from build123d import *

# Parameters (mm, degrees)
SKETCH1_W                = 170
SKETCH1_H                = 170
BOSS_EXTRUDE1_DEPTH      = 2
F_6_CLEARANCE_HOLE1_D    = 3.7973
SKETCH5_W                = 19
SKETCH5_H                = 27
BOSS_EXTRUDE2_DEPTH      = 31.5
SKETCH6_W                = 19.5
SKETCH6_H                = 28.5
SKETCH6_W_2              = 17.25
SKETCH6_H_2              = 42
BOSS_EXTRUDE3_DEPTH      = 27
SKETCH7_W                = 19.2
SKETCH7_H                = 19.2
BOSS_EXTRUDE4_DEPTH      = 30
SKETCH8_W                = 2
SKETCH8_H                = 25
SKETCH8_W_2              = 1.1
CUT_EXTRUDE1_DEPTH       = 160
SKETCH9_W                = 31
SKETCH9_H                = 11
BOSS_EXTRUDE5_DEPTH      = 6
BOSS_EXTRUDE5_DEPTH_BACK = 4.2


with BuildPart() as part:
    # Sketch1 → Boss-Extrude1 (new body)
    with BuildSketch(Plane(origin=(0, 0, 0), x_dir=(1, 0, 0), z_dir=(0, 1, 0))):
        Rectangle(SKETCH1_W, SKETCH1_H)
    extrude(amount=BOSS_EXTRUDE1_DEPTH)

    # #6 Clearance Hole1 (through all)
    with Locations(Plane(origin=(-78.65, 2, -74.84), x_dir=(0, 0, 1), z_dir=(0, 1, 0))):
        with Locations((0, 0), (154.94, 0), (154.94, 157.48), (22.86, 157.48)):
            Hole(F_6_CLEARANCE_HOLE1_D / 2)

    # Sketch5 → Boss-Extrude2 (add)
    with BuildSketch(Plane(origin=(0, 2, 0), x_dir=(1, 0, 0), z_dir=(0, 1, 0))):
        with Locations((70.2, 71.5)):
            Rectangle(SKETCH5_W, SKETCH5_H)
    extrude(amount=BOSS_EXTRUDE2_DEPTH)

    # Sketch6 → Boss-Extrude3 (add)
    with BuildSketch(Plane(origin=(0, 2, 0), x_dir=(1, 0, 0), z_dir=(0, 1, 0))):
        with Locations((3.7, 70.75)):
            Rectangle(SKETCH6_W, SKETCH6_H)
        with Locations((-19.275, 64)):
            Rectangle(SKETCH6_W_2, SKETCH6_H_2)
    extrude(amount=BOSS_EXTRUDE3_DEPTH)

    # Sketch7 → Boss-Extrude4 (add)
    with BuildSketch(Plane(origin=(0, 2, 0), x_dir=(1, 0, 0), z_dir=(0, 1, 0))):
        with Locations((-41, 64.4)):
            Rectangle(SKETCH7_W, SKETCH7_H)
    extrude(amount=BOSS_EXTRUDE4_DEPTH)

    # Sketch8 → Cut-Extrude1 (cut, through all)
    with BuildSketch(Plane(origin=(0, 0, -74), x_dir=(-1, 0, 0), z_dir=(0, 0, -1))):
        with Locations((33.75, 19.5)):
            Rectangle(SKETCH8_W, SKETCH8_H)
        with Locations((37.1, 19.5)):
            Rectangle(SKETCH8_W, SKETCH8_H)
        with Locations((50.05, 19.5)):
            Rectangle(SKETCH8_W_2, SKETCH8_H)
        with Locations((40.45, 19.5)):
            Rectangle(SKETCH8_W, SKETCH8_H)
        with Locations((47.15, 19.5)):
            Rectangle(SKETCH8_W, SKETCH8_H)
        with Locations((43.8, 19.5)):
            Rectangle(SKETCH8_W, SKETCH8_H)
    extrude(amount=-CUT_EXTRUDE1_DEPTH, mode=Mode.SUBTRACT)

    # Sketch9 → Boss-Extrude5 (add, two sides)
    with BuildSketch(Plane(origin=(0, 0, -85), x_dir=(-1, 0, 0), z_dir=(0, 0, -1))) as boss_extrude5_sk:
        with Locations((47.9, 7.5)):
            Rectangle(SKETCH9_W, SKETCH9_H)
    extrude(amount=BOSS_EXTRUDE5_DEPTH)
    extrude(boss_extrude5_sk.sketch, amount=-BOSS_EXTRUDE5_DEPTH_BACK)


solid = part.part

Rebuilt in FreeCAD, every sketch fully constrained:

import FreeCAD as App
import Part
import Sketcher

V = App.Vector
Q = App.Units.Quantity

doc = App.newDocument("Part")
body = doc.addObject("PartDesign::Body", "Body")

sketch1 = doc.addObject("Sketcher::SketchObject", "Sketch")
body.addObject(sketch1)
sketch1.AttachmentSupport = (doc.XZ_Plane, [""])
sketch1.MapMode = "FlatFace"
sketch1.addGeometry([
    Part.LineSegment(V(-85, -85, 0), V(-85, 85, 0)),
    Part.LineSegment(V(-85, 85, 0), V(85, 85, 0)),
    Part.LineSegment(V(85, 85, 0), V(85, -85, 0)),
    Part.LineSegment(V(85, -85, 0), V(-85, -85, 0)),
], False)
sketch1.addConstraint([
    Sketcher.Constraint("Coincident", 0, 2, 1, 1),
    Sketcher.Constraint("Coincident", 1, 2, 2, 1),
    Sketcher.Constraint("Coincident", 2, 2, 3, 1),
    Sketcher.Constraint("Coincident", 3, 2, 0, 1),
    Sketcher.Constraint("Vertical", 0),
    Sketcher.Constraint("Horizontal", 1),
    Sketcher.Constraint("Vertical", 2),
    Sketcher.Constraint("Horizontal", 3),
    Sketcher.Constraint("Symmetric", 0, 2, 2, 2, -1, 1),
    Sketcher.Constraint("Equal", 3, 0),
    Sketcher.Constraint("DistanceX", 1, 1, 1, 2, Q("170 mm")),
])
pad1 = doc.addObject("PartDesign::Pad", "Pad")
body.addObject(pad1)
pad1.Profile = sketch1
pad1.Length = 2
pad1.Reversed = True

sketch2 = doc.addObject("Sketcher::SketchObject", "Sketch001")
body.addObject(sketch2)
sketch2.AttachmentSupport = (doc.XZ_Plane, [""])
sketch2.MapMode = "FlatFace"
sketch2.AttachmentOffset = App.Placement(V(0, 0, -2), App.Rotation())
sketch2.addGeometry([
    Part.Circle(V(-78.7, -74.8, 0), V(0, 0, 1), 1.9),
    Part.Circle(V(-78.7, 80.1, 0), V(0, 0, 1), 1.9),
    Part.Circle(V(78.8, 80.1, 0), V(0, 0, 1), 1.9),
    Part.Circle(V(78.8, -52, 0), V(0, 0, 1), 1.9),
], False)
sketch2.addConstraint([
    Sketcher.Constraint("Equal", 0, 1),
    Sketcher.Constraint("Equal", 1, 2),
    Sketcher.Constraint("Equal", 2, 3),
    Sketcher.Constraint("Horizontal", 1, 3, 2, 3),
    Sketcher.Constraint("Vertical", 0, 3, 1, 3),
    Sketcher.Constraint("Vertical", 2, 3, 3, 3),
    Sketcher.Constraint("Diameter", 0, Q("3.7973 mm")),
    Sketcher.Constraint("DistanceY", -1, 1, 1, 3, Q("80.1 mm")),
    Sketcher.Constraint("DistanceX", 0, 3, -1, 1, Q("78.65 mm")),
    Sketcher.Constraint("DistanceY", 0, 3, -1, 1, Q("74.84 mm")),
    Sketcher.Constraint("DistanceX", -1, 1, 2, 3, Q("78.83 mm")),
    Sketcher.Constraint("DistanceY", 3, 3, -1, 1, Q("51.98 mm")),
])
doc.recompute()
hole = doc.addObject("PartDesign::Hole", "Hole")
body.addObject(hole)
hole.Profile = sketch2
hole.ThreadType = "None"
hole.Diameter = 3.7973
hole.DepthType = "ThroughAll"
hole.Reversed = True

sketch3 = doc.addObject("Sketcher::SketchObject", "Sketch002")
body.addObject(sketch3)
sketch3.AttachmentSupport = (doc.XZ_Plane, [""])
sketch3.MapMode = "FlatFace"
sketch3.AttachmentOffset = App.Placement(V(0, 0, -2), App.Rotation())
sketch3.addGeometry([
    Part.LineSegment(V(61, -85, 0), V(61, -58, 0)),
    Part.LineSegment(V(61, -58, 0), V(80, -58, 0)),
    Part.LineSegment(V(80, -58, 0), V(80, -85, 0)),
    Part.LineSegment(V(80, -85, 0), V(61, -85, 0)),
], False)
sketch3.addConstraint([
    Sketcher.Constraint("Coincident", 0, 2, 1, 1),
    Sketcher.Constraint("Coincident", 1, 2, 2, 1),
    Sketcher.Constraint("Coincident", 2, 2, 3, 1),
    Sketcher.Constraint("Coincident", 3, 2, 0, 1),
    Sketcher.Constraint("Vertical", 0),
    Sketcher.Constraint("Horizontal", 1),
    Sketcher.Constraint("Vertical", 2),
    Sketcher.Constraint("Horizontal", 3),
    Sketcher.Constraint("DistanceX", 1, 1, 1, 2, Q("19 mm")),
    Sketcher.Constraint("DistanceY", 0, 1, 0, 2, Q("27 mm")),
    Sketcher.Constraint("DistanceY", 0, 2, -1, 1, Q("58 mm")),
    Sketcher.Constraint("DistanceX", -1, 1, 0, 2, Q("60.7 mm")),
])
pad2 = doc.addObject("PartDesign::Pad", "Pad001")
body.addObject(pad2)
pad2.Profile = sketch3
pad2.Length = 31.5
pad2.Reversed = True

sketch4 = doc.addObject("Sketcher::SketchObject", "Sketch003")
body.addObject(sketch4)
sketch4.AttachmentSupport = (doc.XZ_Plane, [""])
sketch4.MapMode = "FlatFace"
sketch4.AttachmentOffset = App.Placement(V(0, 0, -2), App.Rotation())
sketch4.addGeometry([
    Part.LineSegment(V(-6, -85, 0), V(-6, -56, 0)),
    Part.LineSegment(V(-6, -56, 0), V(13, -56, 0)),
    Part.LineSegment(V(13, -56, 0), V(13, -85, 0)),
    Part.LineSegment(V(13, -85, 0), V(-6, -85, 0)),
    Part.LineSegment(V(-28, -85, 0), V(-28, -43, 0)),
    Part.LineSegment(V(-28, -43, 0), V(-11, -43, 0)),
    Part.LineSegment(V(-11, -43, 0), V(-11, -85, 0)),
    Part.LineSegment(V(-11, -85, 0), V(-28, -85, 0)),
], False)
sketch4.addConstraint([
    Sketcher.Constraint("Coincident", 0, 2, 1, 1),
    Sketcher.Constraint("Coincident", 1, 2, 2, 1),
    Sketcher.Constraint("Coincident", 2, 2, 3, 1),
    Sketcher.Constraint("Coincident", 3, 2, 0, 1),
    Sketcher.Constraint("Coincident", 4, 2, 5, 1),
    Sketcher.Constraint("Coincident", 5, 2, 6, 1),
    Sketcher.Constraint("Coincident", 6, 2, 7, 1),
    Sketcher.Constraint("Coincident", 7, 2, 4, 1),
    Sketcher.Constraint("Vertical", 0),
    Sketcher.Constraint("Horizontal", 1),
    Sketcher.Constraint("Vertical", 2),
    Sketcher.Constraint("Horizontal", 3),
    Sketcher.Constraint("Vertical", 4),
    Sketcher.Constraint("Horizontal", 5),
    Sketcher.Constraint("Vertical", 6),
    Sketcher.Constraint("Horizontal", 7),
    Sketcher.Constraint("Horizontal", 3, 2, 6, 2),
    Sketcher.Constraint("DistanceY", 4, 1, 4, 2, Q("42 mm")),
    Sketcher.Constraint("DistanceX", 1, 1, 1, 2, Q("19.5 mm")),
    Sketcher.Constraint("DistanceY", 0, 1, 0, 2, Q("28.5 mm")),
    Sketcher.Constraint("DistanceY", 2, 2, -1, 1, Q("85 mm")),
    Sketcher.Constraint("DistanceX", 5, 1, 5, 2, Q("17.25 mm")),
    Sketcher.Constraint("DistanceX", 4, 2, -1, 1, Q("27.9 mm")),
    Sketcher.Constraint("DistanceX", 5, 2, 0, 2, Q("4.6 mm")),
])
pad3 = doc.addObject("PartDesign::Pad", "Pad002")
body.addObject(pad3)
pad3.Profile = sketch4
pad3.Length = 27
pad3.Reversed = True

sketch5 = doc.addObject("Sketcher::SketchObject", "Sketch004")
body.addObject(sketch5)
sketch5.AttachmentSupport = (doc.XZ_Plane, [""])
sketch5.MapMode = "FlatFace"
sketch5.AttachmentOffset = App.Placement(V(0, 0, -2), App.Rotation())
sketch5.addGeometry([
    Part.LineSegment(V(-51, -74, 0), V(-51, -55, 0)),
    Part.LineSegment(V(-51, -55, 0), V(-31, -55, 0)),
    Part.LineSegment(V(-31, -55, 0), V(-31, -74, 0)),
    Part.LineSegment(V(-31, -74, 0), V(-51, -74, 0)),
], False)
sketch5.addConstraint([
    Sketcher.Constraint("Coincident", 0, 2, 1, 1),
    Sketcher.Constraint("Coincident", 1, 2, 2, 1),
    Sketcher.Constraint("Coincident", 2, 2, 3, 1),
    Sketcher.Constraint("Coincident", 3, 2, 0, 1),
    Sketcher.Constraint("Vertical", 0),
    Sketcher.Constraint("Horizontal", 1),
    Sketcher.Constraint("Vertical", 2),
    Sketcher.Constraint("Horizontal", 3),
    Sketcher.Constraint("Equal", 3, 0),
    Sketcher.Constraint("DistanceX", 1, 1, 1, 2, Q("19.2 mm")),
    Sketcher.Constraint("DistanceY", 2, 2, -1, 1, Q("74 mm")),
    Sketcher.Constraint("DistanceX", 0, 2, -1, 1, Q("50.6 mm")),
])
pad4 = doc.addObject("PartDesign::Pad", "Pad003")
body.addObject(pad4)
pad4.Profile = sketch5
pad4.Length = 30
pad4.Reversed = True

sketch6 = doc.addObject("Sketcher::SketchObject", "Sketch005")
body.addObject(sketch6)
sketch6.AttachmentSupport = (doc.XY_Plane, [""])
sketch6.MapMode = "FlatFace"
sketch6.AttachmentOffset = App.Placement(V(0, 0, -74), App.Rotation())
sketch6.addGeometry([
    Part.LineSegment(V(-32.8, 32, 0), V(-32.8, 7, 0)),
    Part.LineSegment(V(-32.8, 7, 0), V(-34.8, 7, 0)),
    Part.LineSegment(V(-34.8, 7, 0), V(-34.8, 32, 0)),
    Part.LineSegment(V(-34.8, 32, 0), V(-32.8, 32, 0)),
    Part.LineSegment(V(-36.1, 32, 0), V(-36.1, 7, 0)),
    Part.LineSegment(V(-36.1, 7, 0), V(-38.1, 7, 0)),
    Part.LineSegment(V(-38.1, 7, 0), V(-38.1, 32, 0)),
    Part.LineSegment(V(-38.1, 32, 0), V(-36.1, 32, 0)),
    Part.LineSegment(V(-49.5, 32, 0), V(-49.5, 7, 0)),
    Part.LineSegment(V(-49.5, 7, 0), V(-50.6, 7, 0)),
    Part.LineSegment(V(-50.6, 7, 0), V(-50.6, 32, 0)),
    Part.LineSegment(V(-50.6, 32, 0), V(-49.5, 32, 0)),
    Part.LineSegment(V(-39.5, 32, 0), V(-39.5, 7, 0)),
    Part.LineSegment(V(-39.5, 7, 0), V(-41.5, 7, 0)),
    Part.LineSegment(V(-41.5, 7, 0), V(-41.5, 32, 0)),
    Part.LineSegment(V(-41.5, 32, 0), V(-39.5, 32, 0)),
    Part.LineSegment(V(-46.1, 32, 0), V(-46.1, 7, 0)),
    Part.LineSegment(V(-46.1, 7, 0), V(-48.1, 7, 0)),
    Part.LineSegment(V(-48.1, 7, 0), V(-48.1, 32, 0)),
    Part.LineSegment(V(-48.1, 32, 0), V(-46.1, 32, 0)),
    Part.LineSegment(V(-42.8, 32, 0), V(-42.8, 7, 0)),
    Part.LineSegment(V(-42.8, 7, 0), V(-44.8, 7, 0)),
    Part.LineSegment(V(-44.8, 7, 0), V(-44.8, 32, 0)),
    Part.LineSegment(V(-44.8, 32, 0), V(-42.8, 32, 0)),
], False)
sketch6.addConstraint([
    Sketcher.Constraint("Coincident", 0, 2, 1, 1),
    Sketcher.Constraint("Coincident", 1, 2, 2, 1),
    Sketcher.Constraint("Coincident", 2, 2, 3, 1),
    Sketcher.Constraint("Coincident", 3, 2, 0, 1),
    Sketcher.Constraint("Coincident", 4, 2, 5, 1),
    Sketcher.Constraint("Coincident", 5, 2, 6, 1),
    Sketcher.Constraint("Coincident", 6, 2, 7, 1),
    Sketcher.Constraint("Coincident", 7, 2, 4, 1),
    Sketcher.Constraint("Coincident", 8, 2, 9, 1),
    Sketcher.Constraint("Coincident", 9, 2, 10, 1),
    Sketcher.Constraint("Coincident", 10, 2, 11, 1),
    Sketcher.Constraint("Coincident", 11, 2, 8, 1),
    Sketcher.Constraint("Coincident", 12, 2, 13, 1),
    Sketcher.Constraint("Coincident", 13, 2, 14, 1),
    Sketcher.Constraint("Coincident", 14, 2, 15, 1),
    Sketcher.Constraint("Coincident", 15, 2, 12, 1),
    Sketcher.Constraint("Coincident", 16, 2, 17, 1),
    Sketcher.Constraint("Coincident", 17, 2, 18, 1),
    Sketcher.Constraint("Coincident", 18, 2, 19, 1),
    Sketcher.Constraint("Coincident", 19, 2, 16, 1),
    Sketcher.Constraint("Coincident", 20, 2, 21, 1),
    Sketcher.Constraint("Coincident", 21, 2, 22, 1),
    Sketcher.Constraint("Coincident", 22, 2, 23, 1),
    Sketcher.Constraint("Coincident", 23, 2, 20, 1),
    Sketcher.Constraint("Vertical", 0),
    Sketcher.Constraint("Horizontal", 1),
    Sketcher.Constraint("Vertical", 2),
    Sketcher.Constraint("Horizontal", 3),
    Sketcher.Constraint("Vertical", 4),
    Sketcher.Constraint("Horizontal", 5),
    Sketcher.Constraint("Vertical", 6),
    Sketcher.Constraint("Horizontal", 7),
    Sketcher.Constraint("Vertical", 8),
    Sketcher.Constraint("Horizontal", 9),
    Sketcher.Constraint("Vertical", 10),
    Sketcher.Constraint("Horizontal", 11),
    Sketcher.Constraint("Vertical", 12),
    Sketcher.Constraint("Horizontal", 13),
    Sketcher.Constraint("Vertical", 14),
    Sketcher.Constraint("Horizontal", 15),
    Sketcher.Constraint("Vertical", 16),
    Sketcher.Constraint("Horizontal", 17),
    Sketcher.Constraint("Vertical", 18),
    Sketcher.Constraint("Horizontal", 19),
    Sketcher.Constraint("Vertical", 20),
    Sketcher.Constraint("Horizontal", 21),
    Sketcher.Constraint("Vertical", 22),
    Sketcher.Constraint("Horizontal", 23),
    Sketcher.Constraint("Horizontal", 1, 2, 4, 2),
    Sketcher.Constraint("Horizontal", 3, 2, 6, 2),
    Sketcher.Constraint("Horizontal", 5, 2, 8, 2),
    Sketcher.Constraint("Horizontal", 7, 2, 10, 2),
    Sketcher.Constraint("Horizontal", 9, 2, 12, 2),
    Sketcher.Constraint("Horizontal", 11, 2, 14, 2),
    Sketcher.Constraint("Horizontal", 13, 2, 16, 2),
    Sketcher.Constraint("Horizontal", 15, 2, 18, 2),
    Sketcher.Constraint("Horizontal", 17, 2, 20, 2),
    Sketcher.Constraint("Horizontal", 19, 2, 22, 2),
    Sketcher.Constraint("Equal", 3, 5),
    Sketcher.Constraint("Equal", 7, 13),
    Sketcher.Constraint("Equal", 15, 17),
    Sketcher.Constraint("Equal", 19, 21),
    Sketcher.Constraint("DistanceX", 1, 2, 1, 1, Q("2 mm")),
    Sketcher.Constraint("DistanceY", 0, 2, 0, 1, Q("25 mm")),
    Sketcher.Constraint("DistanceX", 9, 2, 9, 1, Q("1.1 mm")),
    Sketcher.Constraint("DistanceY", -1, 1, 0, 2, Q("7 mm")),
    Sketcher.Constraint("DistanceX", 4, 2, -1, 1, Q("36.1 mm")),
    Sketcher.Constraint("DistanceX", 8, 2, -1, 1, Q("49.5 mm")),
    Sketcher.Constraint("DistanceX", 20, 2, -1, 1, Q("42.8 mm")),
    Sketcher.Constraint("DistanceX", 12, 2, 1, 2, Q("4.7 mm")),
    Sketcher.Constraint("DistanceX", 16, 2, 13, 2, Q("4.7 mm")),
    Sketcher.Constraint("DistanceX", 0, 2, -1, 1, Q("32.75 mm")),
])
pocket1 = doc.addObject("PartDesign::Pocket", "Pocket")
body.addObject(pocket1)
pocket1.Profile = sketch6
pocket1.Type = "ThroughAll"
pocket1.Reversed = True

sketch7 = doc.addObject("Sketcher::SketchObject", "Sketch006")
body.addObject(sketch7)
sketch7.AttachmentSupport = (doc.XY_Plane, [""])
sketch7.MapMode = "FlatFace"
sketch7.AttachmentOffset = App.Placement(V(0, 0, -85), App.Rotation())
sketch7.addGeometry([
    Part.LineSegment(V(-32, 13, 0), V(-32, 2, 0)),
    Part.LineSegment(V(-32, 2, 0), V(-63, 2, 0)),
    Part.LineSegment(V(-63, 2, 0), V(-63, 13, 0)),
    Part.LineSegment(V(-63, 13, 0), V(-32, 13, 0)),
], False)
sketch7.addConstraint([
    Sketcher.Constraint("Coincident", 0, 2, 1, 1),
    Sketcher.Constraint("Coincident", 1, 2, 2, 1),
    Sketcher.Constraint("Coincident", 2, 2, 3, 1),
    Sketcher.Constraint("Coincident", 3, 2, 0, 1),
    Sketcher.Constraint("Vertical", 0),
    Sketcher.Constraint("Horizontal", 1),
    Sketcher.Constraint("Vertical", 2),
    Sketcher.Constraint("Horizontal", 3),
    Sketcher.Constraint("DistanceX", 1, 2, 1, 1, Q("31 mm")),
    Sketcher.Constraint("DistanceY", 0, 2, 0, 1, Q("11 mm")),
    Sketcher.Constraint("DistanceY", -1, 1, 0, 2, Q("2 mm")),
    Sketcher.Constraint("DistanceX", 0, 2, -1, 1, Q("32.4 mm")),
])
pad5 = doc.addObject("PartDesign::Pad", "Pad004")
body.addObject(pad5)
pad5.Profile = sketch7
pad5.Type = "TwoLengths"
pad5.Length = 6
pad5.Length2 = 4.2
pad5.Reversed = True

doc.recompute()
